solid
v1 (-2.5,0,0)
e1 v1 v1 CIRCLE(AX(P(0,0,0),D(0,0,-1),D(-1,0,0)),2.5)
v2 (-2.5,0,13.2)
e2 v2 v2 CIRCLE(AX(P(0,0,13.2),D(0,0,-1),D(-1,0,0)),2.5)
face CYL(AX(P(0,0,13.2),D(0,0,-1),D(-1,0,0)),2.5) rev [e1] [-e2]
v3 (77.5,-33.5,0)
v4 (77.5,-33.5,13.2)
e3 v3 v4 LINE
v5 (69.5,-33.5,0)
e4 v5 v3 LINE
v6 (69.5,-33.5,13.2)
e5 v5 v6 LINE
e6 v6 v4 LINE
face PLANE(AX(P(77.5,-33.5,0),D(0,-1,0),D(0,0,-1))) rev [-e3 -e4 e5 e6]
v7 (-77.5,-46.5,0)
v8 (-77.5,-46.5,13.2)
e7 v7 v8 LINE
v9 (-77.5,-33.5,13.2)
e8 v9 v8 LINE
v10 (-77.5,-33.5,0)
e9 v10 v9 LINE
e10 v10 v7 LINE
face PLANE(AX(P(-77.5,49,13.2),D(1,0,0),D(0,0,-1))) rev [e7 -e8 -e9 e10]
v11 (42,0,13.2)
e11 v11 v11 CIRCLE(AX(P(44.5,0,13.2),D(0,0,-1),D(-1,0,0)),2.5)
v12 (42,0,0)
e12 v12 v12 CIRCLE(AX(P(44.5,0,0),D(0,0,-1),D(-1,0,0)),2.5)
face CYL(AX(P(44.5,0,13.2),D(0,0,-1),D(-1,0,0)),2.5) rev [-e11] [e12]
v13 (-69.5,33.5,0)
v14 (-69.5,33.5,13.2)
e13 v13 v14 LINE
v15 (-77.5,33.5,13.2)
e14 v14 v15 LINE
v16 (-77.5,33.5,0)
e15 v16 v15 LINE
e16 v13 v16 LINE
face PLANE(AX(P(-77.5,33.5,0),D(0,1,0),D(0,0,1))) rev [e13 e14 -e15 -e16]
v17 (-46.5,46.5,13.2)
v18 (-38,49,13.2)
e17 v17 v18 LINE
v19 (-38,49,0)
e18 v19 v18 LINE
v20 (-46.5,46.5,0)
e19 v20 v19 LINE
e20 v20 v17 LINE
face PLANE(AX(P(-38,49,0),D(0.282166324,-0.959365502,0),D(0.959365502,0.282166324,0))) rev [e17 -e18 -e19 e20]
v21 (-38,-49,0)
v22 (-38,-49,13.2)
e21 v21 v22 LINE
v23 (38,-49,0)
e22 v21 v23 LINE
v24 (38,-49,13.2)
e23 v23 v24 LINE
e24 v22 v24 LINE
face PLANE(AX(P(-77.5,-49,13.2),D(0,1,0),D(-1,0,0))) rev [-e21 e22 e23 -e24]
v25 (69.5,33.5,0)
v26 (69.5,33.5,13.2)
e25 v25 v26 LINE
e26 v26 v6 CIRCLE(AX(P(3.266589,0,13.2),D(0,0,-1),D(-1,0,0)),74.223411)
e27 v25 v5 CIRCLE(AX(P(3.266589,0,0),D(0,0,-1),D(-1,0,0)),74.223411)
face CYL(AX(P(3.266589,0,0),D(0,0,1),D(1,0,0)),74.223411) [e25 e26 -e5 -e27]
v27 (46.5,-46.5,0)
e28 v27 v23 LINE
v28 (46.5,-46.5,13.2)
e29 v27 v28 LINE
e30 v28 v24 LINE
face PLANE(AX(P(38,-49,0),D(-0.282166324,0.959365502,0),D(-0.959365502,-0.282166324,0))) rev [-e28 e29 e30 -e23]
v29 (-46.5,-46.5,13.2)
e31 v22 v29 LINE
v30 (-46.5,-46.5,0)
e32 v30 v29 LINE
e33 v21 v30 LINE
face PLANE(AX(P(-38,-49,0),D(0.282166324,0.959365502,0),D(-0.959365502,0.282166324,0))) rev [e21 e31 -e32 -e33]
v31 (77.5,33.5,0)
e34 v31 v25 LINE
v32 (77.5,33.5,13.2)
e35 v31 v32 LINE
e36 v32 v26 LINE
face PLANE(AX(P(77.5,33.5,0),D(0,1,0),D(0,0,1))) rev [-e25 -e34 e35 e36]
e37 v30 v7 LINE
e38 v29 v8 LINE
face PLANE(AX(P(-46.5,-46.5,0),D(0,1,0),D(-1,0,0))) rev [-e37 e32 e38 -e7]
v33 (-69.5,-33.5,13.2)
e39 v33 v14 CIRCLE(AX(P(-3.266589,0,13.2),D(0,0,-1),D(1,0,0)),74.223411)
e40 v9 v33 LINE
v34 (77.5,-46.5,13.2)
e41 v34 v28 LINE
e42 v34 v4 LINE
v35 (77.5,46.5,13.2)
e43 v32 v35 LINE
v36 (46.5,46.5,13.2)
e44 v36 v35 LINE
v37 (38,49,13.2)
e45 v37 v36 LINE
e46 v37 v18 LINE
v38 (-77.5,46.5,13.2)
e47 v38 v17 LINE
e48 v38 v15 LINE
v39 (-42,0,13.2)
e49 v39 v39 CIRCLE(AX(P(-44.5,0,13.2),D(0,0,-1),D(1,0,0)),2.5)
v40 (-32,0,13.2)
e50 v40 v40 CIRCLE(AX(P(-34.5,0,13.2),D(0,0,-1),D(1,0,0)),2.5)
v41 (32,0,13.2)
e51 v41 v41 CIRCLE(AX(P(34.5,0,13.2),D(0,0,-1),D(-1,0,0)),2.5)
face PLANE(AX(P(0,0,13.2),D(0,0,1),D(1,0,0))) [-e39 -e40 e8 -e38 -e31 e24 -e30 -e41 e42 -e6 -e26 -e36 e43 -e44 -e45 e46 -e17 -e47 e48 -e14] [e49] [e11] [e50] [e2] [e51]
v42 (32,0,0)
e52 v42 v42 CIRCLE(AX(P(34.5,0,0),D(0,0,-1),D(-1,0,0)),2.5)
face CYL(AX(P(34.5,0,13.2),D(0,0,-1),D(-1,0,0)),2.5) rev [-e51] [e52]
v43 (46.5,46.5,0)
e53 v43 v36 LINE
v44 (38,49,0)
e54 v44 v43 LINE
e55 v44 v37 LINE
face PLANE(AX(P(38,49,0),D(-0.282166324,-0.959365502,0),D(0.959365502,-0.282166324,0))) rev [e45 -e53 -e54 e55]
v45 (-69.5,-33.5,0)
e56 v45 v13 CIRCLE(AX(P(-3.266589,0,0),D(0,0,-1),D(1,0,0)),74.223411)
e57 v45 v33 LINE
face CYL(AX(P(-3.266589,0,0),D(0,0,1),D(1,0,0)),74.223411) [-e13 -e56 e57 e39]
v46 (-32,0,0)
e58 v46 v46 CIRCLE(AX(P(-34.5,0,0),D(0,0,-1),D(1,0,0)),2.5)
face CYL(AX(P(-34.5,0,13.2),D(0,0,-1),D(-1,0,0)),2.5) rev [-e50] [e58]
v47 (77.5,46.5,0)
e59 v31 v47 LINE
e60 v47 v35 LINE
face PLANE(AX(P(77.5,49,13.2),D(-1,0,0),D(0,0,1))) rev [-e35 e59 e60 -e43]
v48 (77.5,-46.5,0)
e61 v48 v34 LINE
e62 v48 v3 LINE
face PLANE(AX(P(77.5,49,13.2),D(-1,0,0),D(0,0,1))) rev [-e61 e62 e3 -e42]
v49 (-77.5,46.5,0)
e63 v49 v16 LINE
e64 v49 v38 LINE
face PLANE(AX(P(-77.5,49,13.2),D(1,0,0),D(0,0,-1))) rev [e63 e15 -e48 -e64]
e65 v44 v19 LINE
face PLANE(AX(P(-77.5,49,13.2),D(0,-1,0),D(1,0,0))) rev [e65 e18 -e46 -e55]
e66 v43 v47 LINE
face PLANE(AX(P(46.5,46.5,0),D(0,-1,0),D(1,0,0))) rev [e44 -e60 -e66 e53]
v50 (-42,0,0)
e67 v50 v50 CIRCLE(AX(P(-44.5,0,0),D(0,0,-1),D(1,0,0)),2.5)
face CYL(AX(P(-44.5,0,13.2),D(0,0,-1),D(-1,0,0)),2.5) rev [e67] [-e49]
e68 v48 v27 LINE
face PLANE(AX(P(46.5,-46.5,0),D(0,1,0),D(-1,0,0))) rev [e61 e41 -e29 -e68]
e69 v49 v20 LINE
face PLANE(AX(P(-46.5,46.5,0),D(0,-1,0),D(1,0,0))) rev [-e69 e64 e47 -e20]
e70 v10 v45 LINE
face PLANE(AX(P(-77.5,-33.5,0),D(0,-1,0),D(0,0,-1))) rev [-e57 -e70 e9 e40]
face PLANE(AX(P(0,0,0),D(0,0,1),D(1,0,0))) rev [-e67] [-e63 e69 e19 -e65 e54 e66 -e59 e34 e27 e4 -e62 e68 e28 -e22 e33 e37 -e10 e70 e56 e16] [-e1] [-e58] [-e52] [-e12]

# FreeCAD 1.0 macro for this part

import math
import FreeCAD as App
import Part
import Sketcher
from FreeCAD import Vector
Q = App.Units.Quantity

doc = App.newDocument("Part")
body = doc.addObject("PartDesign::Body", "Body")

# Sketch on XY plane
sketch1 = doc.addObject("Sketcher::SketchObject", "Sketch")
body.addObject(sketch1)
sketch1.AttachmentSupport = (doc.XY_Plane, [""])
sketch1.MapMode = "FlatFace"
sketch1.addGeometry(Part.LineSegment(Vector(-78, 49, 0), Vector(-78, -49, 0)), False)
sketch1.addGeometry(Part.LineSegment(Vector(-78, -49, 0), Vector(78, -49, 0)), False)
sketch1.addGeometry(Part.LineSegment(Vector(78, -49, 0), Vector(78, 49, 0)), False)
sketch1.addGeometry(Part.LineSegment(Vector(78, 49, 0), Vector(-78, 49, 0)), False)
sketch1.addConstraint(Sketcher.Constraint("Coincident", 0, 2, 1, 1))
sketch1.addConstraint(Sketcher.Constraint("Coincident", 1, 2, 2, 1))
sketch1.addConstraint(Sketcher.Constraint("Coincident", 2, 2, 3, 1))
sketch1.addConstraint(Sketcher.Constraint("Coincident", 3, 2, 0, 1))
sketch1.addConstraint(Sketcher.Constraint("Vertical", 0))
sketch1.addConstraint(Sketcher.Constraint("Horizontal", 1))
sketch1.addConstraint(Sketcher.Constraint("Vertical", 2))
sketch1.addConstraint(Sketcher.Constraint("Horizontal", 3))
sketch1.addConstraint(Sketcher.Constraint("Symmetric", 0, 2, 2, 2, -1, 1))
sketch1.addConstraint(Sketcher.Constraint("DistanceX", 1, 1, 1, 2, Q("155 mm")))
sketch1.addConstraint(Sketcher.Constraint("DistanceY", 0, 2, 0, 1, Q("98 mm")))
pad1 = doc.addObject("PartDesign::Pad", "Pad")
body.addObject(pad1)
pad1.Profile = sketch1
pad1.Length = 13.2

# Sketch on XY plane
sketch2 = doc.addObject("Sketcher::SketchObject", "Sketch001")
body.addObject(sketch2)
sketch2.AttachmentSupport = (doc.XY_Plane, [""])
sketch2.MapMode = "FlatFace"
sketch2.AttachmentOffset = App.Placement(Vector(0, 0, 13.2), App.Rotation())
sketch2.addGeometry(Part.LineSegment(Vector(-46.5, 46.5, 0), Vector(-38, 49, 0)), False)
sketch2.addGeometry(Part.LineSegment(Vector(-38, 49, 0), Vector(-77.5, 49, 0)), False)
sketch2.addGeometry(Part.LineSegment(Vector(-77.5, 49, 0), Vector(-77.5, 46.5, 0)), False)
sketch2.addGeometry(Part.LineSegment(Vector(-77.5, 46.5, 0), Vector(-46.5, 46.5, 0)), False)
sketch2.addGeometry(Part.LineSegment(Vector(77.5, 49, 0), Vector(38, 49, 0)), False)
sketch2.addGeometry(Part.LineSegment(Vector(38, 49, 0), Vector(46.5, 46.5, 0)), False)
sketch2.addGeometry(Part.LineSegment(Vector(46.5, 46.5, 0), Vector(77.5, 46.5, 0)), False)
sketch2.addGeometry(Part.LineSegment(Vector(77.5, 46.5, 0), Vector(77.5, 49, 0)), False)
sketch2.addGeometry(Part.LineSegment(Vector(46.5, -46.5, 0), Vector(38, -49, 0)), False)
sketch2.addGeometry(Part.LineSegment(Vector(38, -49, 0), Vector(77.5, -49, 0)), False)
sketch2.addGeometry(Part.LineSegment(Vector(77.5, -49, 0), Vector(77.5, -46.5, 0)), False)
sketch2.addGeometry(Part.LineSegment(Vector(77.5, -46.5, 0), Vector(46.5, -46.5, 0)), False)
sketch2.addGeometry(Part.LineSegment(Vector(-77.5, -49, 0), Vector(-38, -49, 0)), False)
sketch2.addGeometry(Part.LineSegment(Vector(-38, -49, 0), Vector(-46.5, -46.5, 0)), False)
sketch2.addGeometry(Part.LineSegment(Vector(-46.5, -46.5, 0), Vector(-77.5, -46.5, 0)), False)
sketch2.addGeometry(Part.LineSegment(Vector(-77.5, -46.5, 0), Vector(-77.5, -49, 0)), False)
sketch2.addConstraint(Sketcher.Constraint("Coincident", 0, 2, 1, 1))
sketch2.addConstraint(Sketcher.Constraint("Coincident", 1, 2, 2, 1))
sketch2.addConstraint(Sketcher.Constraint("Coincident", 2, 2, 3, 1))
sketch2.addConstraint(Sketcher.Constraint("Coincident", 3, 2, 0, 1))
sketch2.addConstraint(Sketcher.Constraint("Coincident", 4, 2, 5, 1))
sketch2.addConstraint(Sketcher.Constraint("Coincident", 5, 2, 6, 1))
sketch2.addConstraint(Sketcher.Constraint("Coincident", 6, 2, 7, 1))
sketch2.addConstraint(Sketcher.Constraint("Coincident", 7, 2, 4, 1))
sketch2.addConstraint(Sketcher.Constraint("Coincident", 8, 2, 9, 1))
sketch2.addConstraint(Sketcher.Constraint("Coincident", 9, 2, 10, 1))
sketch2.addConstraint(Sketcher.Constraint("Coincident", 10, 2, 11, 1))
sketch2.addConstraint(Sketcher.Constraint("Coincident", 11, 2, 8, 1))
sketch2.addConstraint(Sketcher.Constraint("Coincident", 12, 2, 13, 1))
sketch2.addConstraint(Sketcher.Constraint("Coincident", 13, 2, 14, 1))
sketch2.addConstraint(Sketcher.Constraint("Coincident", 14, 2, 15, 1))
sketch2.addConstraint(Sketcher.Constraint("Coincident", 15, 2, 12, 1))
sketch2.addConstraint(Sketcher.Constraint("Horizontal", 1))
sketch2.addConstraint(Sketcher.Constraint("Vertical", 2))
sketch2.addConstraint(Sketcher.Constraint("Horizontal", 3))
sketch2.addConstraint(Sketcher.Constraint("Horizontal", 4))
sketch2.addConstraint(Sketcher.Constraint("Horizontal", 6))
sketch2.addConstraint(Sketcher.Constraint("Vertical", 7))
sketch2.addConstraint(Sketcher.Constraint("Horizontal", 9))
sketch2.addConstraint(Sketcher.Constraint("Vertical", 10))
sketch2.addConstraint(Sketcher.Constraint("Horizontal", 11))
sketch2.addConstraint(Sketcher.Constraint("Horizontal", 12))
sketch2.addConstraint(Sketcher.Constraint("Horizontal", 14))
sketch2.addConstraint(Sketcher.Constraint("Vertical", 15))
sketch2.addConstraint(Sketcher.Constraint("Symmetric", 0, 2, 8, 2, -1, 1))
sketch2.addConstraint(Sketcher.Constraint("Symmetric", 2, 2, 10, 2, -1, 1))
sketch2.addConstraint(Sketcher.Constraint("Symmetric", 4, 2, 12, 2, -1, 1))
sketch2.addConstraint(Sketcher.Constraint("Symmetric", 5, 2, 13, 2, -1, 1))
sketch2.addConstraint(Sketcher.Constraint("Symmetric", 0, 2, 4, 2, -2))
sketch2.addConstraint(Sketcher.Constraint("Symmetric", 3, 2, 5, 2, -2))
sketch2.addConstraint(Sketcher.Constraint("Parallel", 0, 8))
sketch2.addConstraint(Sketcher.Constraint("Vertical", 7, 2, 9, 2))
sketch2.addConstraint(Sketcher.Constraint("Vertical", 2, 2, 14, 2))
sketch2.addConstraint(Sketcher.Constraint("DistanceX", 3, 1, 3, 2, Q("31 mm")))
sketch2.addConstraint(Sketcher.Constraint("DistanceX", 1, 2, 1, 1, Q("39.5 mm")))
sketch2.addConstraint(Sketcher.Constraint("DistanceY", 2, 2, 2, 1, Q("2.5 mm")))
sketch2.addConstraint(Sketcher.Constraint("DistanceX", 0, 2, -1, 1, Q("38 mm")))
sketch2.addConstraint(Sketcher.Constraint("DistanceY", -1, 1, 0, 2, Q("49 mm")))
pocket1 = doc.addObject("PartDesign::Pocket", "Pocket")
body.addObject(pocket1)
pocket1.Profile = sketch2
pocket1.Type = "ThroughAll"

# Sketch on XY plane
sketch3 = doc.addObject("Sketcher::SketchObject", "Sketch002")
body.addObject(sketch3)
sketch3.AttachmentSupport = (doc.XY_Plane, [""])
sketch3.MapMode = "FlatFace"
sketch3.AttachmentOffset = App.Placement(Vector(0, 0, 13.2), App.Rotation())
sketch3.addGeometry(Part.LineSegment(Vector(-78, -34, 0), Vector(-70, -34, 0)), False)
sketch3.addGeometry(Part.ArcOfCircle(Part.Circle(Vector(-3, 0, 0), Vector(0, 0, 1), 74), math.radians(153), math.radians(207)), False)
sketch3.addGeometry(Part.LineSegment(Vector(-70, 34, 0), Vector(-78, 34, 0)), False)
sketch3.addGeometry(Part.LineSegment(Vector(-78, 34, 0), Vector(-78, -34, 0)), False)
sketch3.addGeometry(Part.LineSegment(Vector(78, -34, 0), Vector(78, 34, 0)), False)
sketch3.addGeometry(Part.LineSegment(Vector(78, 34, 0), Vector(70, 34, 0)), False)
sketch3.addGeometry(Part.ArcOfCircle(Part.Circle(Vector(3, 0, 0), Vector(0, 0, 1), 74), math.radians(-27), math.radians(27)), False)
sketch3.addGeometry(Part.LineSegment(Vector(70, -34, 0), Vector(78, -34, 0)), False)
sketch3.addConstraint(Sketcher.Constraint("Coincident", 0, 2, 1, 2))
sketch3.addConstraint(Sketcher.Constraint("Coincident", 1, 1, 2, 1))
sketch3.addConstraint(Sketcher.Constraint("Coincident", 2, 2, 3, 1))
sketch3.addConstraint(Sketcher.Constraint("Coincident", 3, 2, 0, 1))
sketch3.addConstraint(Sketcher.Constraint("Coincident", 4, 2, 5, 1))
sketch3.addConstraint(Sketcher.Constraint("Coincident", 5, 2, 6, 2))
sketch3.addConstraint(Sketcher.Constraint("Coincident", 6, 1, 7, 1))
sketch3.addConstraint(Sketcher.Constraint("Coincident", 7, 2, 4, 1))
sketch3.addConstraint(Sketcher.Constraint("Horizontal", 0))
sketch3.addConstraint(Sketcher.Constraint("Horizontal", 2))
sketch3.addConstraint(Sketcher.Constraint("Vertical", 3))
sketch3.addConstraint(Sketcher.Constraint("Vertical", 4))
sketch3.addConstraint(Sketcher.Constraint("Horizontal", 5))
sketch3.addConstraint(Sketcher.Constraint("Horizontal", 7))
sketch3.addConstraint(Sketcher.Constraint("Equal", 1, 6))
sketch3.addConstraint(Sketcher.Constraint("Symmetric", 1, 3, 6, 3, -1, 1))
sketch3.addConstraint(Sketcher.Constraint("Symmetric", 3, 2, 4, 2, -1, 1))
sketch3.addConstraint(Sketcher.Constraint("Symmetric", 1, 1, 5, 2, -2))
sketch3.addConstraint(Sketcher.Constraint("Horizontal", 3, 2, 6, 1))
sketch3.addConstraint(Sketcher.Constraint("DistanceX", 0, 1, 0, 2, Q("8 mm")))
sketch3.addConstraint(Sketcher.Constraint("DistanceY", 3, 2, 3, 1, Q("67 mm")))
sketch3.addConstraint(Sketcher.Constraint("DistanceX", 1, 1, 4, 2, Q("147 mm")))
sketch3.addConstraint(Sketcher.Constraint("Radius", 1, Q("74.223411 mm")))
pocket2 = doc.addObject("PartDesign::Pocket", "Pocket001")
body.addObject(pocket2)
pocket2.Profile = sketch3
pocket2.Type = "ThroughAll"

# Sketch on XY plane
sketch4 = doc.addObject("Sketcher::SketchObject", "Sketch003")
body.addObject(sketch4)
sketch4.AttachmentSupport = (doc.XY_Plane, [""])
sketch4.MapMode = "FlatFace"
sketch4.addGeometry(Part.Circle(Vector(44.5, 0, 0), Vector(0, 0, 1), 2.5), False)
sketch4.addGeometry(Part.Circle(Vector(34.5, 0, 0), Vector(0, 0, 1), 2.5), False)
sketch4.addGeometry(Part.Circle(Vector(0, 0, 0), Vector(0, 0, 1), 2.5), False)
sketch4.addGeometry(Part.Circle(Vector(-34.5, 0, 0), Vector(0, 0, 1), 2.5), False)
sketch4.addGeometry(Part.Circle(Vector(-44.5, 0, 0), Vector(0, 0, 1), 2.5), False)
sketch4.addConstraint(Sketcher.Constraint("Coincident", 2, 3, -1, 1))
sketch4.addConstraint(Sketcher.Constraint("Equal", 0, 1))
sketch4.addConstraint(Sketcher.Constraint("Equal", 1, 2))
sketch4.addConstraint(Sketcher.Constraint("Equal", 2, 3))
sketch4.addConstraint(Sketcher.Constraint("Equal", 3, 4))
sketch4.addConstraint(Sketcher.Constraint("Symmetric", 1, 3, 3, 3, -1, 1))
sketch4.addConstraint(Sketcher.Constraint("Symmetric", 0, 3, 4, 3, -1, 1))
sketch4.addConstraint(Sketcher.Constraint("PointOnObject", 0, 3, -1))
sketch4.addConstraint(Sketcher.Constraint("PointOnObject", 1, 3, -1))
sketch4.addConstraint(Sketcher.Constraint("Diameter", 0, Q("5 mm")))
sketch4.addConstraint(Sketcher.Constraint("DistanceX", 1, 3, 0, 3, Q("10 mm")))
sketch4.addConstraint(Sketcher.Constraint("DistanceX", 3, 3, 1, 3, Q("69 mm")))
pocket3 = doc.addObject("PartDesign::Pocket", "Pocket002")
body.addObject(pocket3)
pocket3.Profile = sketch4
pocket3.Length = 13.2
pocket3.Reversed = True

doc.recompute()
